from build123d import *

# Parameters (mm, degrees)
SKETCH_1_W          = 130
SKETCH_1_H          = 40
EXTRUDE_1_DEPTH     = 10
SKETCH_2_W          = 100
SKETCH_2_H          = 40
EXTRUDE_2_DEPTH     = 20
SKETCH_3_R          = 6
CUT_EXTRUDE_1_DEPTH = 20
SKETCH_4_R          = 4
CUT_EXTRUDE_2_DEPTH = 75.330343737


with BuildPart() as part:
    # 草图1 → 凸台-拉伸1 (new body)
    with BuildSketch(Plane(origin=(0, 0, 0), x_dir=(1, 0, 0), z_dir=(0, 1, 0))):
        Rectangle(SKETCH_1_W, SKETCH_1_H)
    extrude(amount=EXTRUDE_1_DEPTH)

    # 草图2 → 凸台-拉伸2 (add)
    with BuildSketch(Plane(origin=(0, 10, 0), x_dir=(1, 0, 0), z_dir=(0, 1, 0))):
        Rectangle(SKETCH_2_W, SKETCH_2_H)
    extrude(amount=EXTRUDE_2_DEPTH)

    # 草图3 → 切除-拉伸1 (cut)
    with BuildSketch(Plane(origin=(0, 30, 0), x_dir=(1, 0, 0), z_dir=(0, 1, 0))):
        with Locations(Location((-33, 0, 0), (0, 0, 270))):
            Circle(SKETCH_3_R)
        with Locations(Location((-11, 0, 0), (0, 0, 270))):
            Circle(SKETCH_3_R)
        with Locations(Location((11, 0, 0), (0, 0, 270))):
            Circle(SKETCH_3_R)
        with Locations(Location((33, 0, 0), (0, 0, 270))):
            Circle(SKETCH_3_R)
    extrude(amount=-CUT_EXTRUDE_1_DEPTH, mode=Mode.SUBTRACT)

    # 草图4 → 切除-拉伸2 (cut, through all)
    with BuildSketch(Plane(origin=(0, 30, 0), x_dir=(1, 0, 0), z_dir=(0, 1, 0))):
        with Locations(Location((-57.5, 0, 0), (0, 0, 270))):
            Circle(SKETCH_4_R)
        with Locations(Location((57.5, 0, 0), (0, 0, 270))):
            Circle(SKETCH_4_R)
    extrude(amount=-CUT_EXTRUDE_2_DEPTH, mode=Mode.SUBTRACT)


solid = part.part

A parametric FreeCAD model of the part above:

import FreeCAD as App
import Part
import Sketcher
from FreeCAD import Vector


def add_polygon(sketch, points):
    """Adds a closed chain of lines whose ends are joined by coincident constraints."""
    first, n = sketch.GeometryCount, len(points)
    for a, b in zip(points, points[1:] + points[:1]):
        sketch.addGeometry(Part.LineSegment(App.Vector(*a, 0), App.Vector(*b, 0)), False)
    for i in range(n):
        sketch.addConstraint(Sketcher.Constraint("Coincident", first + i, 2, first + (i + 1) % n, 1))

doc = App.newDocument("Part")
body = doc.addObject("PartDesign::Body", "Body")

sketch1 = doc.addObject("Sketcher::SketchObject", "Sketch")
body.addObject(sketch1)
sketch1.AttachmentSupport = (doc.XZ_Plane, [""])
sketch1.MapMode = "FlatFace"
add_polygon(sketch1, [(-65, -20), (-65, 20), (65, 20), (65, -20)])
sketch1.addConstraint([
    Sketcher.Constraint("Vertical", 0),
    Sketcher.Constraint("Horizontal", 1),
    Sketcher.Constraint("Vertical", 2),
    Sketcher.Constraint("Horizontal", 3),
    Sketcher.Constraint("Symmetric", 0, 2, 2, 2, -1, 1),
    Sketcher.Constraint("DistanceX", 1, 1, 1, 2, 130.0),
    Sketcher.Constraint("DistanceY", 0, 1, 0, 2, 40.0),
])
pad1 = doc.addObject("PartDesign::Pad", "Pad")
body.addObject(pad1)
pad1.Profile = sketch1
pad1.Length = 10
pad1.Reversed = True

sketch2 = doc.addObject("Sketcher::SketchObject", "Sketch001")
body.addObject(sketch2)
sketch2.AttachmentSupport = (doc.XZ_Plane, [""])
sketch2.MapMode = "FlatFace"
sketch2.AttachmentOffset = App.Placement(Vector(0, 0, -10), App.Rotation())
add_polygon(sketch2, [(-50, -20), (-50, 20), (50, 20), (50, -20)])
sketch2.addConstraint([
    Sketcher.Constraint("Vertical", 0),
    Sketcher.Constraint("Horizontal", 1),
    Sketcher.Constraint("Vertical", 2),
    Sketcher.Constraint("Horizontal", 3),
    Sketcher.Constraint("Symmetric", 0, 2, 2, 2, -1, 1),
    Sketcher.Constraint("DistanceX", 1, 1, 1, 2, 100.0),
    Sketcher.Constraint("DistanceY", 0, 1, 0, 2, 40.0),
])
pad2 = doc.addObject("PartDesign::Pad", "Pad001")
body.addObject(pad2)
pad2.Profile = sketch2
pad2.Length = 20
pad2.Reversed = True

sketch3 = doc.addObject("Sketcher::SketchObject", "Sketch002")
body.addObject(sketch3)
sketch3.AttachmentSupport = (doc.XZ_Plane, [""])
sketch3.MapMode = "FlatFace"
sketch3.AttachmentOffset = App.Placement(Vector(0, 0, -30), App.Rotation())
sketch3.addGeometry([
    Part.Circle(Vector(-33, 0, 0), Vector(0, 0, 1), 6),
    Part.Circle(Vector(-11, 0, 0), Vector(0, 0, 1), 6),
    Part.Circle(Vector(11, 0, 0), Vector(0, 0, 1), 6),
    Part.Circle(Vector(33, 0, 0), Vector(0, 0, 1), 6),
], False)
sketch3.addConstraint([
    Sketcher.Constraint("Equal", 0, 1),
    Sketcher.Constraint("Equal", 1, 2),
    Sketcher.Constraint("Equal", 2, 3),
    Sketcher.Constraint("Symmetric", 1, 3, 2, 3, -1, 1),
    Sketcher.Constraint("Symmetric", 0, 3, 3, 3, -1, 1),
    Sketcher.Constraint("PointOnObject", 0, 3, -1),
    Sketcher.Constraint("PointOnObject", 1, 3, -1),
    Sketcher.Constraint("Diameter", 0, 12.0),
    Sketcher.Constraint("DistanceX", 0, 3, -1, 1, 33.0),
    Sketcher.Constraint("DistanceX", 1, 3, -1, 1, 11.0),
])
pocket1 = doc.addObject("PartDesign::Pocket", "Pocket")
body.addObject(pocket1)
pocket1.Profile = sketch3
pocket1.Length = 20
pocket1.Reversed = True

sketch4 = doc.addObject("Sketcher::SketchObject", "Sketch003")
body.addObject(sketch4)
sketch4.AttachmentSupport = (doc.XZ_Plane, [""])
sketch4.MapMode = "FlatFace"
sketch4.AttachmentOffset = App.Placement(Vector(0, 0, -30), App.Rotation())
sketch4.addGeometry([
    Part.Circle(Vector(-57.5, 0, 0), Vector(0, 0, 1), 4),
    Part.Circle(Vector(57.5, 0, 0), Vector(0, 0, 1), 4),
], False)
sketch4.addConstraint([
    Sketcher.Constraint("Equal", 0, 1),
    Sketcher.Constraint("Symmetric", 0, 3, 1, 3, -1, 1),
    Sketcher.Constraint("PointOnObject", 0, 3, -1),
    Sketcher.Constraint("Diameter", 0, 8.0),
    Sketcher.Constraint("DistanceX", 0, 3, 1, 3, 115.0),
])
pocket2 = doc.addObject("PartDesign::Pocket", "Pocket001")
body.addObject(pocket2)
pocket2.Profile = sketch4
pocket2.Type = "ThroughAll"
pocket2.Reversed = True

doc.recompute()
